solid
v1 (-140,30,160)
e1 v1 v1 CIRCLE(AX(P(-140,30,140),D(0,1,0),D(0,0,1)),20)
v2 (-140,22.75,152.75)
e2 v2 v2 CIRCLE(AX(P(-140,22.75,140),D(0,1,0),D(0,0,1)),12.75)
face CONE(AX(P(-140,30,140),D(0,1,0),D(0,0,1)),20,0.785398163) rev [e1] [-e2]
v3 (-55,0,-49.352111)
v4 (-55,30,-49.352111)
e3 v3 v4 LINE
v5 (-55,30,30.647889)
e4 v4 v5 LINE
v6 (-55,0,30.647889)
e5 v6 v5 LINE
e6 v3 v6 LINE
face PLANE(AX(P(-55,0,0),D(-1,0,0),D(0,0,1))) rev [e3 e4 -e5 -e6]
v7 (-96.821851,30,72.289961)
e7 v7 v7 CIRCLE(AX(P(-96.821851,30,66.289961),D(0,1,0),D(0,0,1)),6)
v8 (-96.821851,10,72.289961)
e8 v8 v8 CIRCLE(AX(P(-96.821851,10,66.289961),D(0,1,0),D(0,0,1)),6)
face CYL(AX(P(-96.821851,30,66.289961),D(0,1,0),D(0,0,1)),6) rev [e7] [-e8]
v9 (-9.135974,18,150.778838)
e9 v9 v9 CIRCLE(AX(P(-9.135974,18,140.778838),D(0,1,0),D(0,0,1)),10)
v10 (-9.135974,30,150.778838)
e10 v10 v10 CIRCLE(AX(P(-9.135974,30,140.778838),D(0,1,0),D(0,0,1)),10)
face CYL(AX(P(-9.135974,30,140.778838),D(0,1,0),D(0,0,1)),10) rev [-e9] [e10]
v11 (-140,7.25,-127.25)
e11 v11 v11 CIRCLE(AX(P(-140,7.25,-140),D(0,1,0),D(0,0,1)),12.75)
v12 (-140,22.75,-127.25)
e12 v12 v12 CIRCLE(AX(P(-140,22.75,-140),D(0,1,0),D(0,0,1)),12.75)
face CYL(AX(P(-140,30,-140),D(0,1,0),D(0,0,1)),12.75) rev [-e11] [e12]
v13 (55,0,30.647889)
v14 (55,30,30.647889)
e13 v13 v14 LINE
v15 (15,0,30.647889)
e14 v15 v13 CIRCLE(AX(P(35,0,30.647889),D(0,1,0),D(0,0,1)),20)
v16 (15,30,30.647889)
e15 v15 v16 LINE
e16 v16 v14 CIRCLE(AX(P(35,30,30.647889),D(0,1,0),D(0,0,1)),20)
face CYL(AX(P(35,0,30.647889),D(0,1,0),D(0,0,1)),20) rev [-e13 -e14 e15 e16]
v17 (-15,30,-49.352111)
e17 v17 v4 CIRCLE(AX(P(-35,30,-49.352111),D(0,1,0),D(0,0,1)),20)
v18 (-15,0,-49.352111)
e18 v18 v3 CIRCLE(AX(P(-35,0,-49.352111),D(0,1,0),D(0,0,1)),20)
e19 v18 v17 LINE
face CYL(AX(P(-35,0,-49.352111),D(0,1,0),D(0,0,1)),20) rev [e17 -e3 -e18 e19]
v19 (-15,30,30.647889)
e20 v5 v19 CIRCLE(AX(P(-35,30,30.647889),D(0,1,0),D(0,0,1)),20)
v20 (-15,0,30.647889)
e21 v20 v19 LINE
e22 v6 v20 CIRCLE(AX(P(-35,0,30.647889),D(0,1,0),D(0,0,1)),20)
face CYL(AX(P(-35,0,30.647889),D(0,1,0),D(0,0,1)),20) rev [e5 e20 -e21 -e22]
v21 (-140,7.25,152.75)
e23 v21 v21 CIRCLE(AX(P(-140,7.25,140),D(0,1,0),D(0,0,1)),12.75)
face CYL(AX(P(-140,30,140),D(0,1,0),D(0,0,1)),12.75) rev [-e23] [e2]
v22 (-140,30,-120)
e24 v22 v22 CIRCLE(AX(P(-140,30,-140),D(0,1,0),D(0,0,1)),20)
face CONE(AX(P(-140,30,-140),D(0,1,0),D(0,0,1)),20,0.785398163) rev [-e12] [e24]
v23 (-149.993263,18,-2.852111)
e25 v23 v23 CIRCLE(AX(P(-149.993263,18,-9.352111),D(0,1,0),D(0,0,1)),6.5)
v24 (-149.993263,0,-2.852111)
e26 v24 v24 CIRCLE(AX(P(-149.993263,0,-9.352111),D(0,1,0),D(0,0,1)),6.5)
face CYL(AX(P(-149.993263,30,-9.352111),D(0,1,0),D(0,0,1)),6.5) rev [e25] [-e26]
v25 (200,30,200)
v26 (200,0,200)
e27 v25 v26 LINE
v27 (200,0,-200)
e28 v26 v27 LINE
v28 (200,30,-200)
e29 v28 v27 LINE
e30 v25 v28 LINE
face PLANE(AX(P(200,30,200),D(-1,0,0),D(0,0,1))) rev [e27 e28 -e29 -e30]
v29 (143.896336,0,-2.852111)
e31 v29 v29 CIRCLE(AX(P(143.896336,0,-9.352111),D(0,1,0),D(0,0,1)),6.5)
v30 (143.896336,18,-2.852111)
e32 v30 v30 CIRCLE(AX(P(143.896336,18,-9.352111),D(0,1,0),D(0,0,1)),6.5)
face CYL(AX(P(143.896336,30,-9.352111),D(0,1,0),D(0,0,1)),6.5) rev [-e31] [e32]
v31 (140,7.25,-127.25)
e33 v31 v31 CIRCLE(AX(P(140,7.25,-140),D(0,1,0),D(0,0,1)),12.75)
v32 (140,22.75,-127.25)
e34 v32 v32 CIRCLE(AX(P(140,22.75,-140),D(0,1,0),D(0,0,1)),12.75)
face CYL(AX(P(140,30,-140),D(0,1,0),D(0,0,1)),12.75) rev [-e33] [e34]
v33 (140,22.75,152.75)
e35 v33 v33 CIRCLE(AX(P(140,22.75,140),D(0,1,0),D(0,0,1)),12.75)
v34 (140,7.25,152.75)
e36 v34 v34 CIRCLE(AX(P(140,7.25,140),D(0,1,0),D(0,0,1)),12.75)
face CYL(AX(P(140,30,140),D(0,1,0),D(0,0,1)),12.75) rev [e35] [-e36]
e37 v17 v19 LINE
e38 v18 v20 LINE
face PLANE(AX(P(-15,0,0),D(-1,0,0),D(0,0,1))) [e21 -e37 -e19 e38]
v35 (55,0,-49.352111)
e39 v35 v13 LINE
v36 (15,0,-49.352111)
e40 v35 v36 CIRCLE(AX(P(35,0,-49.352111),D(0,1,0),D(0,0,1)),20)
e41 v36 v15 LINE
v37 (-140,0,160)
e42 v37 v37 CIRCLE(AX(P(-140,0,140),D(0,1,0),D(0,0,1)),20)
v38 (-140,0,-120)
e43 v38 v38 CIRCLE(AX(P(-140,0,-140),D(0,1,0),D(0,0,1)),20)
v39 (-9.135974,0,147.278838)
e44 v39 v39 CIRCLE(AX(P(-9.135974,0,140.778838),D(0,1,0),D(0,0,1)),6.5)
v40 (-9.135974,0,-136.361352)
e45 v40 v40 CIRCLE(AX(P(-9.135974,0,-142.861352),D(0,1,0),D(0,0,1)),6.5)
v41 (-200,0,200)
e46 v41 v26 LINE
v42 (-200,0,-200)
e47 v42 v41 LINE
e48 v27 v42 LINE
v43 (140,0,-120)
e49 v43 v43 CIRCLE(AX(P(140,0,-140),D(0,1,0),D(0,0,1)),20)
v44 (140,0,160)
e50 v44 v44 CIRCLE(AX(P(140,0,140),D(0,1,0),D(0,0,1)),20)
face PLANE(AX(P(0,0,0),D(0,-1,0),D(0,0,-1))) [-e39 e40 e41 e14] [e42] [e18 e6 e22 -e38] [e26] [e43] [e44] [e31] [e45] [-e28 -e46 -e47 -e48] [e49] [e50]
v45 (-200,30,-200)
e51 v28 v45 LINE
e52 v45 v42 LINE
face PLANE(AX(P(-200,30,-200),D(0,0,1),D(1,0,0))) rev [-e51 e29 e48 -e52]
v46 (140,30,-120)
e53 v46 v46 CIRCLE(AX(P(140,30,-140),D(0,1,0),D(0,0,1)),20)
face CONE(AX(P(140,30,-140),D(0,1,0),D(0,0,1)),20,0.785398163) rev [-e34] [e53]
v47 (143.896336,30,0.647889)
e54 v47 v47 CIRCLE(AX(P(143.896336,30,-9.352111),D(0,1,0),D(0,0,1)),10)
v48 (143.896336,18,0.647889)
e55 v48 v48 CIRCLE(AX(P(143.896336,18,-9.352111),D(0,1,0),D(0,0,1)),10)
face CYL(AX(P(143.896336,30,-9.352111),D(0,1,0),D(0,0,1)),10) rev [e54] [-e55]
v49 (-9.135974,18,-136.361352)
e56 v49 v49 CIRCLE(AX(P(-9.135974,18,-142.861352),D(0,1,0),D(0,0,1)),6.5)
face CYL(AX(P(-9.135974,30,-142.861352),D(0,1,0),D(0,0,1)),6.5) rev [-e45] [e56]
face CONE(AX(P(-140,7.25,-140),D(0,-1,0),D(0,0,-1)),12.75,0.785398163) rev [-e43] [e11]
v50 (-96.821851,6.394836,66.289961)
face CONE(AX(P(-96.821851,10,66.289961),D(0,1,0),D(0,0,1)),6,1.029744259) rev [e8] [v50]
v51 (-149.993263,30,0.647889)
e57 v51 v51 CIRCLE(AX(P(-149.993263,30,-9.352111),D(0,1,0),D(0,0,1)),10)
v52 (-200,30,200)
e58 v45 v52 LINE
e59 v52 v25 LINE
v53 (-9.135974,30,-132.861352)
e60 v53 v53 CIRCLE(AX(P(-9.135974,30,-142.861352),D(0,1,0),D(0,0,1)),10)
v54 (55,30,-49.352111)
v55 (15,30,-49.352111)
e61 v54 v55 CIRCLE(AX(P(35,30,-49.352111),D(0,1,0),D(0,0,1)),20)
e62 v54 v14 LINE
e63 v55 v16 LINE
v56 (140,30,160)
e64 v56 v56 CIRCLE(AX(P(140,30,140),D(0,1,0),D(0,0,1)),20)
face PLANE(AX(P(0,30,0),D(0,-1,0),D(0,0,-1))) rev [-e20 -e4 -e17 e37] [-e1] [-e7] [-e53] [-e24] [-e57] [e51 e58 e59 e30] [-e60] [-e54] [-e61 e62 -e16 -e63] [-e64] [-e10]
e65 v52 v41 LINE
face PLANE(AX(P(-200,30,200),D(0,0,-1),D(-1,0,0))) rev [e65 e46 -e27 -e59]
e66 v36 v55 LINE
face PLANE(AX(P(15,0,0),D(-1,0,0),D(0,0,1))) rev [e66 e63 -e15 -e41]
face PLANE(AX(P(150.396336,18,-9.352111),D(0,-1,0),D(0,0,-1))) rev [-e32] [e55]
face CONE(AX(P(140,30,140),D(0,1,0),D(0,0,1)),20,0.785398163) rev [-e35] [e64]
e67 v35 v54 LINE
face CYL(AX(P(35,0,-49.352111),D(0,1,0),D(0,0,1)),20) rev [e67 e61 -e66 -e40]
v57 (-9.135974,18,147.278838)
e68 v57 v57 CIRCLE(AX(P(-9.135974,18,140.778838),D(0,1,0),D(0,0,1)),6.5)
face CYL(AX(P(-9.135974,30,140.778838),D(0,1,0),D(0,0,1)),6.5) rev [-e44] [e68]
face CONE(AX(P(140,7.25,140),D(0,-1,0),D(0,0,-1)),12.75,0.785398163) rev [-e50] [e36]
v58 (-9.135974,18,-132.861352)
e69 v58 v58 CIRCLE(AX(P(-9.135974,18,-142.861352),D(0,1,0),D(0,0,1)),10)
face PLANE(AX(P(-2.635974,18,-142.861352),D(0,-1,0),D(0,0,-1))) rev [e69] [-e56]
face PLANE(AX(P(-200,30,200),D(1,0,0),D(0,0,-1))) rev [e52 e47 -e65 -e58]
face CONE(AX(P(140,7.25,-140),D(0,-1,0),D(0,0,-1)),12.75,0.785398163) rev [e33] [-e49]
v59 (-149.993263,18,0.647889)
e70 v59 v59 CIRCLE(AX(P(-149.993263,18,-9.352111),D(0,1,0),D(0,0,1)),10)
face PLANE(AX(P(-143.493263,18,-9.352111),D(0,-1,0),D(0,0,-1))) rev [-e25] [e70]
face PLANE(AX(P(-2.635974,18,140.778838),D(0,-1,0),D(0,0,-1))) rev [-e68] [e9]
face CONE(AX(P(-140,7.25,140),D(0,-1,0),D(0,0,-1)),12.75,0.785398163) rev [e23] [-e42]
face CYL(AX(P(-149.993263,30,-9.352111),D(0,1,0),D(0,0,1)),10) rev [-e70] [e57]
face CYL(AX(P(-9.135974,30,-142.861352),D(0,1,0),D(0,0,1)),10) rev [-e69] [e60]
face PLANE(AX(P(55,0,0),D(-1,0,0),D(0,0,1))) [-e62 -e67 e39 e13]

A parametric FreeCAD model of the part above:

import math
import FreeCAD as App
import Part
import Sketcher
from FreeCAD import Vector
Q = App.Units.Quantity

doc = App.newDocument("Part")
body = doc.addObject("PartDesign::Body", "Body")

sketch1 = body.newObject("Sketcher::SketchObject", "Sketch")
sketch1.AttachmentSupport = (doc.getObject("XZ_Plane"), [""])
sketch1.MapMode = "FlatFace"
sketch1.addGeometry([
    Part.LineSegment(Vector(-200, -200, 0), Vector(-200, 200, 0)),
    Part.LineSegment(Vector(-200, 200, 0), Vector(200, 200, 0)),
    Part.LineSegment(Vector(200, 200, 0), Vector(200, -200, 0)),
    Part.LineSegment(Vector(200, -200, 0), Vector(-200, -200, 0)),
], False)
sketch1.addConstraint([
    Sketcher.Constraint("Coincident", 0, 2, 1, 1),
    Sketcher.Constraint("Coincident", 1, 2, 2, 1),
    Sketcher.Constraint("Coincident", 2, 2, 3, 1),
    Sketcher.Constraint("Coincident", 3, 2, 0, 1),
    Sketcher.Constraint("Vertical", 0),
    Sketcher.Constraint("Horizontal", 1),
    Sketcher.Constraint("Vertical", 2),
    Sketcher.Constraint("Horizontal", 3),
    Sketcher.Constraint("Symmetric", 0, 2, 2, 2, -1, 1),
    Sketcher.Constraint("Equal", 3, 0),
    Sketcher.Constraint("DistanceX", 1, 1, 1, 2, Q("400 mm")),
])
pad1 = body.newObject("PartDesign::Pad", "Pad")
pad1.Profile = sketch1
pad1.Length = 30
pad1.Reversed = True

sketch2 = body.newObject("Sketcher::SketchObject", "Sketch001")
sketch2.AttachmentSupport = (doc.getObject("YZ_Plane"), [""])
sketch2.MapMode = "FlatFace"
sketch2.AttachmentOffset = App.Placement(Vector(0, 0, -140), App.Rotation())
sketch2.addGeometry([
    Part.LineSegment(Vector(0, 140, 0), Vector(30, 140, 0)),
    Part.LineSegment(Vector(30, 140, 0), Vector(30, 160, 0)),
    Part.LineSegment(Vector(30, 160, 0), Vector(22.75, 152.75, 0)),
    Part.LineSegment(Vector(22.75, 152.75, 0), Vector(7.25, 152.75, 0)),
    Part.LineSegment(Vector(7.25, 152.75, 0), Vector(0, 160, 0)),
    Part.LineSegment(Vector(0, 160, 0), Vector(0, 140, 0)),
], False)
sketch2.addGeometry(Part.LineSegment(Vector(30, 140, 0), Vector(0, 140, 0)), True)
sketch2.addConstraint([
    Sketcher.Constraint("Coincident", 0, 2, 1, 1),
    Sketcher.Constraint("Coincident", 1, 2, 2, 1),
    Sketcher.Constraint("Coincident", 2, 2, 3, 1),
    Sketcher.Constraint("Coincident", 3, 2, 4, 1),
    Sketcher.Constraint("Coincident", 4, 2, 5, 1),
    Sketcher.Constraint("Coincident", 5, 2, 0, 1),
    Sketcher.Constraint("Horizontal", 0),
    Sketcher.Constraint("Vertical", 1),
    Sketcher.Constraint("Horizontal", 3),
    Sketcher.Constraint("Vertical", 5),
    Sketcher.Constraint("Horizontal", 6),
    Sketcher.Constraint("Coincident", 6, 1, 0, 2),
    Sketcher.Constraint("PointOnObject", 4, 2, -2),
    Sketcher.Constraint("PointOnObject", 6, 2, -2),
    Sketcher.Constraint("Perpendicular", 2, 4),
    Sketcher.Constraint("Horizontal", 1, 2, 4, 2),
    Sketcher.Constraint("Equal", 2, 4),
    Sketcher.Constraint("DistanceX", 0, 1, 0, 2, Q("30 mm")),
    Sketcher.Constraint("DistanceY", 1, 1, 1, 2, Q("20 mm")),
    Sketcher.Constraint("DistanceX", 3, 2, 3, 1, Q("15.5 mm")),
    Sketcher.Constraint("DistanceY", -1, 1, 0, 2, Q("140 mm")),
])
groove = body.newObject("PartDesign::Groove", "Groove")
groove.Profile = sketch2
groove.ReferenceAxis = (sketch2, ["Axis0"])
groove.Angle = 360
doc.recompute()

linearpattern = body.newObject("PartDesign::LinearPattern", "LinearPattern")
linearpattern.Originals = [groove]
linearpattern.Direction = (doc.getObject("Z_Axis"), [""])
linearpattern.Mode = "offset"
linearpattern.Offset = 280
linearpattern.Occurrences = 2
linearpattern.Reversed = True
body.Tip = linearpattern
doc.recompute()

linearpattern2 = body.newObject("PartDesign::LinearPattern", "LinearPattern001")
linearpattern2.Originals = [groove]
linearpattern2.Direction = (doc.getObject("X_Axis"), [""])
linearpattern2.Mode = "offset"
linearpattern2.Offset = 280
linearpattern2.Occurrences = 2
body.Tip = linearpattern2
doc.recompute()

datumline = body.newObject("PartDesign::Line", "DatumLine")
datumline.Placement = App.Placement(Vector(0, 0, 0), App.Rotation(Vector(0, 0, 1), Vector(0.707106781, 0, -0.707106781)))
linearpattern3 = body.newObject("PartDesign::LinearPattern", "LinearPattern002")
linearpattern3.Originals = [groove]
linearpattern3.Direction = (datumline, [""])
linearpattern3.Mode = "offset"
linearpattern3.Offset = 395.979797
linearpattern3.Occurrences = 2
body.Tip = linearpattern3

sketch3 = body.newObject("Sketcher::SketchObject", "Sketch002")
sketch3.AttachmentSupport = (doc.getObject("XZ_Plane"), [""])
sketch3.MapMode = "FlatFace"
sketch3.AttachmentOffset = App.Placement(Vector(0, 0, -30), App.Rotation())
sketch3.addGeometry([
    Part.LineSegment(Vector(-15, 30.647889, 0), Vector(-15, -49.352111, 0)),
    Part.ArcOfCircle(Part.Circle(Vector(-35, -49.352111, 0), Vector(0, 0, 1), 20), math.radians(180), math.radians(360)),
    Part.LineSegment(Vector(-55, -49.352111, 0), Vector(-55, 30.647889, 0)),
    Part.ArcOfCircle(Part.Circle(Vector(-35, 30.647889, 0), Vector(0, 0, 1), 20), math.radians(0), math.radians(180)),
    Part.LineSegment(Vector(55, 30.647889, 0), Vector(55, -49.352111, 0)),
    Part.ArcOfCircle(Part.Circle(Vector(35, -49.352111, 0), Vector(0, 0, 1), 20), math.radians(180), math.radians(360)),
    Part.LineSegment(Vector(15, -49.352111, 0), Vector(15, 30.647889, 0)),
    Part.ArcOfCircle(Part.Circle(Vector(35, 30.647889, 0), Vector(0, 0, 1), 20), math.radians(0), math.radians(180)),
], False)
sketch3.addConstraint([
    Sketcher.Constraint("Tangent", 0, 2, 1, 2),
    Sketcher.Constraint("Tangent", 1, 1, 2, 1),
    Sketcher.Constraint("Tangent", 2, 2, 3, 2),
    Sketcher.Constraint("Tangent", 3, 1, 0, 1),
    Sketcher.Constraint("Tangent", 4, 2, 5, 2),
    Sketcher.Constraint("Tangent", 5, 1, 6, 1),
    Sketcher.Constraint("Tangent", 6, 2, 7, 2),
    Sketcher.Constraint("Tangent", 7, 1, 4, 1),
    Sketcher.Constraint("Vertical", 0),
    Sketcher.Constraint("Vertical", 2),
    Sketcher.Constraint("Vertical", 4),
    Sketcher.Constraint("Vertical", 6),
    Sketcher.Constraint("Equal", 3, 5),
    Sketcher.Constraint("Symmetric", 1, 3, 5, 3, -2),
    Sketcher.Constraint("Horizontal", 3, 3, 7, 3),
    Sketcher.Constraint("Radius", 1, Q("20 mm")),
    Sketcher.Constraint("DistanceY", 0, 2, 0, 1, Q("80 mm")),
    Sketcher.Constraint("DistanceX", 1, 3, -1, 1, Q("35 mm")),
    Sketcher.Constraint("DistanceY", 1, 3, -1, 1, Q("49.352111 mm")),
])
pocket1 = body.newObject("PartDesign::Pocket", "Pocket")
pocket1.Profile = sketch3
pocket1.Length = 30
pocket1.Reversed = True

sketch4 = body.newObject("Sketcher::SketchObject", "Sketch003")
sketch4.AttachmentSupport = (doc.getObject("XZ_Plane"), [""])
sketch4.MapMode = "FlatFace"
sketch4.AttachmentOffset = App.Placement(Vector(0, 0, -30), App.Rotation())
sketch4.addGeometry([
    Part.Circle(Vector(-9.135974, 140.778838, 0), Vector(0, 0, 1), 6.5),
    Part.Circle(Vector(-149.993263, -9.352111, 0), Vector(0, 0, 1), 6.5),
    Part.Circle(Vector(-9.135974, -142.861352, 0), Vector(0, 0, 1), 6.5),
    Part.Circle(Vector(143.896336, -9.352111, 0), Vector(0, 0, 1), 6.5),
], False)
sketch4.addConstraint([
    Sketcher.Constraint("Equal", 0, 1),
    Sketcher.Constraint("Equal", 1, 2),
    Sketcher.Constraint("Equal", 2, 3),
    Sketcher.Constraint("Horizontal", 1, 3, 3, 3),
    Sketcher.Constraint("Vertical", 0, 3, 2, 3),
    Sketcher.Constraint("Diameter", 0, Q("13 mm")),
    Sketcher.Constraint("DistanceX", 1, 3, 3, 3, Q("293.889598 mm")),
    Sketcher.Constraint("DistanceY", 1, 3, -1, 1, Q("9.352111 mm")),
    Sketcher.Constraint("DistanceX", 1, 3, 0, 3, Q("140.857289 mm")),
    Sketcher.Constraint("DistanceY", 1, 3, 0, 3, Q("150.130949 mm")),
    Sketcher.Constraint("DistanceY", 2, 3, 1, 3, Q("133.509241 mm")),
    Sketcher.Constraint("DistanceX", 0, 3, -1, 1, Q("9.135974 mm")),
])
doc.recompute()
hole = body.newObject("PartDesign::Hole", "Hole")
hole.Profile = sketch4
hole.ThreadType = "None"
hole.Diameter = 13
hole.DepthType = "ThroughAll"
hole.HoleCutType = "Counterbore"
hole.HoleCutDiameter = 20
hole.HoleCutDepth = 12
hole.Reversed = True

sketch5 = body.newObject("Sketcher::SketchObject", "Sketch004")
sketch5.AttachmentSupport = (doc.getObject("XZ_Plane"), [""])
sketch5.MapMode = "FlatFace"
sketch5.AttachmentOffset = App.Placement(Vector(0, 0, -30), App.Rotation())
sketch5.addGeometry(Part.Circle(Vector(-96.821851, 66.289961, 0), Vector(0, 0, 1), 6), False)
sketch5.addConstraint([
    Sketcher.Constraint("Diameter", 0, Q("12 mm")),
    Sketcher.Constraint("DistanceX", 0, 3, -1, 1, Q("96.821851 mm")),
    Sketcher.Constraint("DistanceY", -1, 1, 0, 3, Q("66.289961 mm")),
])
doc.recompute()
hole2 = body.newObject("PartDesign::Hole", "Hole001")
hole2.Profile = sketch5
hole2.ThreadType = "None"
hole2.Diameter = 12
hole2.DepthType = "Dimension"
hole2.Depth = 20
hole2.DrillPoint = "Angled"
hole2.DrillPointAngle = 118
hole2.Reversed = True

doc.recompute()
